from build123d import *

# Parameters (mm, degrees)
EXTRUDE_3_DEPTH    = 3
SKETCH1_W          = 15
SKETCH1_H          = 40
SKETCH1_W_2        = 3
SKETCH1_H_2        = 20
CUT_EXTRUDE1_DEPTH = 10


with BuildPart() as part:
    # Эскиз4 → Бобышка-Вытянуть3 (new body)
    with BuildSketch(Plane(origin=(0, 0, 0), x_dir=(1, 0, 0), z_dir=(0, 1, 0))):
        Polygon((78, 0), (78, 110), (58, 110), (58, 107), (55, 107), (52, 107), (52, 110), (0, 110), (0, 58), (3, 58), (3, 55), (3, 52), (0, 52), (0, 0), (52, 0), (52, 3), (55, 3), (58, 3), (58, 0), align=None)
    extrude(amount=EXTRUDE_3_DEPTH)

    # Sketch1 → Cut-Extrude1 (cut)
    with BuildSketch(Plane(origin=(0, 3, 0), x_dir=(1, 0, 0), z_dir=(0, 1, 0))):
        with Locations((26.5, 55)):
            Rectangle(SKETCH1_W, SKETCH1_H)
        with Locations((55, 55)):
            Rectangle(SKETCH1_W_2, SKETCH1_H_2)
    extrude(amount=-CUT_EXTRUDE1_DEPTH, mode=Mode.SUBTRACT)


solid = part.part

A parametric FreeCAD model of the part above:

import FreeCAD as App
import Part
import Sketcher
Q = App.Units.Quantity


def add_polygon(sketch, points):
    """Adds a closed chain of lines whose ends are joined by coincident constraints."""
    first, n = sketch.GeometryCount, len(points)
    for a, b in zip(points, points[1:] + points[:1]):
        sketch.addGeometry(Part.LineSegment(App.Vector(*a, 0), App.Vector(*b, 0)), False)
    for i in range(n):
        sketch.addConstraint(Sketcher.Constraint("Coincident", first + i, 2, first + (i + 1) % n, 1))

doc = App.newDocument("Part")
body = doc.addObject("PartDesign::Body", "Body")

# Sketch on XZ plane
sketch1 = body.newObject("Sketcher::SketchObject", "Sketch")
sketch1.AttachmentSupport = (doc.getObject("XZ_Plane"), [""])
sketch1.MapMode = "FlatFace"
add_polygon(sketch1, [(78, 0), (78, -110), (58, -110), (58, -107), (52, -107), (52, -110), (0, -110), (0, -58), (3, -58), (3, -52), (0, -52), (0, 0), (52, 0), (52, -3), (58, -3), (58, 0)])  # lines 0-15
sketch1.addConstraint([
    Sketcher.Constraint("Vertical", 0),
    Sketcher.Constraint("Horizontal", 1),
    Sketcher.Constraint("Vertical", 2),
    Sketcher.Constraint("Horizontal", 3),
    Sketcher.Constraint("Vertical", 4),
    Sketcher.Constraint("Horizontal", 5),
    Sketcher.Constraint("Vertical", 6),
    Sketcher.Constraint("Horizontal", 7),
    Sketcher.Constraint("Vertical", 8),
    Sketcher.Constraint("Horizontal", 9),
    Sketcher.Constraint("Vertical", 10),
    Sketcher.Constraint("Horizontal", 11),
    Sketcher.Constraint("Vertical", 12),
    Sketcher.Constraint("Horizontal", 13),
    Sketcher.Constraint("Vertical", 14),
    Sketcher.Constraint("Horizontal", 15),
    Sketcher.Constraint("Coincident", 10, 2, -1, 1),
    Sketcher.Constraint("PointOnObject", 5, 2, -2),
    Sketcher.Constraint("PointOnObject", 14, 2, -1),
    Sketcher.Constraint("Horizontal", 1, 2, 4, 2),
    Sketcher.Constraint("Vertical", 4, 2, 11, 2),
    Sketcher.Constraint("Vertical", 2, 2, 13, 2),
    Sketcher.Constraint("Equal", 9, 2),
    Sketcher.Constraint("Equal", 11, 6),
    Sketcher.Constraint("Equal", 13, 8),
    Sketcher.Constraint("Equal", 6, 10),
    Sketcher.Constraint("Equal", 4, 12),
    Sketcher.Constraint("DistanceX", 1, 2, 1, 1, Q("20 mm")),
    Sketcher.Constraint("DistanceX", 3, 2, 3, 1, Q("6 mm")),
    Sketcher.Constraint("DistanceX", 5, 2, 5, 1, Q("52 mm")),
    Sketcher.Constraint("DistanceX", 7, 1, 7, 2, Q("3 mm")),
])
pad1 = body.newObject("PartDesign::Pad", "Pad")
pad1.Profile = sketch1
pad1.Length = 3
pad1.Reversed = True

# Sketch on XZ plane
sketch2 = body.newObject("Sketcher::SketchObject", "Sketch001")
sketch2.AttachmentSupport = (doc.getObject("XZ_Plane"), [""])
sketch2.MapMode = "FlatFace"
sketch2.AttachmentOffset = App.Placement(App.Vector(0, 0, -3), App.Rotation())
add_polygon(sketch2, [(19, -75), (19, -35), (34, -35), (34, -75)])  # lines 0-3
add_polygon(sketch2, [(53.5, -65), (53.5, -45), (56.5, -45), (56.5, -65)])  # lines 4-7
sketch2.addConstraint([
    Sketcher.Constraint("Vertical", 0),
    Sketcher.Constraint("Horizontal", 1),
    Sketcher.Constraint("Vertical", 2),
    Sketcher.Constraint("Horizontal", 3),
    Sketcher.Constraint("Vertical", 4),
    Sketcher.Constraint("Horizontal", 5),
    Sketcher.Constraint("Vertical", 6),
    Sketcher.Constraint("Horizontal", 7),
    Sketcher.Constraint("DistanceX", 1, 1, 1, 2, Q("15 mm")),
    Sketcher.Constraint("DistanceX", 5, 1, 5, 2, Q("3 mm")),
    Sketcher.Constraint("DistanceY", 0, 1, 0, 2, Q("40 mm")),
    Sketcher.Constraint("DistanceY", 4, 1, 4, 2, Q("20 mm")),
    Sketcher.Constraint("DistanceX", -1, 1, 0, 2, Q("19 mm")),
    Sketcher.Constraint("DistanceY", 0, 2, -1, 1, Q("35 mm")),
    Sketcher.Constraint("DistanceY", 4, 2, -1, 1, Q("45 mm")),
    Sketcher.Constraint("DistanceX", -1, 1, 4, 2, Q("53.5 mm")),
])
pocket1 = body.newObject("PartDesign::Pocket", "Pocket")
pocket1.Profile = sketch2
pocket1.Length = 10
pocket1.Reversed = True

doc.recompute()
